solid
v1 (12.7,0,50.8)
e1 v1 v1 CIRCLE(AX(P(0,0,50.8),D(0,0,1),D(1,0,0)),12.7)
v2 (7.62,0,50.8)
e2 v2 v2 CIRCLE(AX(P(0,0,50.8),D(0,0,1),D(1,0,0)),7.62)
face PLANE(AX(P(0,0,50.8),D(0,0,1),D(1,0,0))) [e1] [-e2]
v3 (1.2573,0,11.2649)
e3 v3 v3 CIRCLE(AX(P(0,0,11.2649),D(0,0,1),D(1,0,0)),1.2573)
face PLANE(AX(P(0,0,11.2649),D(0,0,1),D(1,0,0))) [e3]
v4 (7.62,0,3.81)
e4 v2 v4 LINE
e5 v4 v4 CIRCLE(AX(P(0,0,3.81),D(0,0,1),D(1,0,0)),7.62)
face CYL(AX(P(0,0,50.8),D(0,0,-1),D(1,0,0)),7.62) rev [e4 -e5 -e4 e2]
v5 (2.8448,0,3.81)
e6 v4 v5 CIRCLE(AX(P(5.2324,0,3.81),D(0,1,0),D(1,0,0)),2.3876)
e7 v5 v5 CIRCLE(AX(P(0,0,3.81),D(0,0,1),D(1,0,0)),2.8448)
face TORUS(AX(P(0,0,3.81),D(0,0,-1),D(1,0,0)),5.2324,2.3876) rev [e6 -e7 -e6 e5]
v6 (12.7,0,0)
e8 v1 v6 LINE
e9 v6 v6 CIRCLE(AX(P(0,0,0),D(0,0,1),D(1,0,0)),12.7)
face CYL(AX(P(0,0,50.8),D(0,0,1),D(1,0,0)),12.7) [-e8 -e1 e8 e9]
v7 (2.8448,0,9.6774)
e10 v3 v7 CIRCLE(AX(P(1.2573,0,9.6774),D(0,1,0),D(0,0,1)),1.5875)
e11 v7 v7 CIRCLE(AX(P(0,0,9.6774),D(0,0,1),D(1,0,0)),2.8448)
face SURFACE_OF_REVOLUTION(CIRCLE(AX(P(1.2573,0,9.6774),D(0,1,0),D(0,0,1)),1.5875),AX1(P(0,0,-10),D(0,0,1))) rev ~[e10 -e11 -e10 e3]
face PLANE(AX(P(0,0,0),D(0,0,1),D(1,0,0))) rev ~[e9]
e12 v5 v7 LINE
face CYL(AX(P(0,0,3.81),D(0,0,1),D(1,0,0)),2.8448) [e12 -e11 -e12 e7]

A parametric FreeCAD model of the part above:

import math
import FreeCAD as App
import Part
import Sketcher
Q = App.Units.Quantity

doc = App.newDocument("Part")
params = doc.addObject("Spreadsheet::Sheet", "Params")
for row, (alias, value) in enumerate([
    ("sketch1_diameter", "1 in"),
    ("pad1_length", "2 in"),
    ("sketch2_width", "0.3 in"),
    ("sketch2_radius", "0.094 in"),
    ("sketch2_radius2", "0.0625 in"),
    ("sketch2_height", "1.85 in"),
    ("sketch2_height2", "0.231 in"),
    ("groove_angle", "360 deg"),
], start=1):
    params.set(f"A{row}", alias)
    params.set(f"B{row}", "=" + value)
    params.setAlias(f"B{row}", alias)

body = doc.addObject("PartDesign::Body", "Body")

sketch1 = body.newObject("Sketcher::SketchObject", "Sketch")
sketch1.AttachmentSupport = (doc.getObject("XY_Plane"), [""])
sketch1.MapMode = "FlatFace"
sketch1.AttachmentOffset = App.Placement(App.Vector(0, 0, 2 * 25.4), App.Rotation())
sketch1.addGeometry(Part.Circle(App.Vector(0, 0, 0), App.Vector(0, 0, 1), 13), False)
sketch1.addConstraint([
    Sketcher.Constraint("Coincident", 0, 3, -1, 1),
    Sketcher.Constraint("Diameter", 0, Q("1 in")),
])
sketch1.setExpression("Constraints[1]", "Params.sketch1_diameter")
pad1 = body.newObject("PartDesign::Pad", "Pad")
pad1.Profile = sketch1
pad1.setExpression("Length", "Params.pad1_length")
pad1.Reversed = True

sketch2 = body.newObject("Sketcher::SketchObject", "Sketch001")
sketch2.AttachmentSupport = (doc.getObject("XZ_Plane"), [""])
sketch2.MapMode = "FlatFace"
sketch2.addGeometry([
    Part.LineSegment(App.Vector(0, 11.3, 0), App.Vector(0, 50.8, 0)),
    Part.LineSegment(App.Vector(0, 50.8, 0), App.Vector(7.6, 50.8, 0)),
    Part.LineSegment(App.Vector(7.6, 50.8, 0), App.Vector(7.6, 3.8, 0)),
    Part.ArcOfCircle(Part.Circle(App.Vector(5.2, 3.8, 0), App.Vector(0, 0, 1), 2.4), math.radians(180), math.radians(360)),
    Part.LineSegment(App.Vector(2.8, 3.8, 0), App.Vector(2.8, 9.7, 0)),
    Part.ArcOfCircle(Part.Circle(App.Vector(1.3, 9.7, 0), App.Vector(0, 0, 1), 1.6), math.radians(0), math.radians(90)),
    Part.LineSegment(App.Vector(1.3, 11.3, 0), App.Vector(0, 11.3, 0)),
], False)
sketch2.addConstraint([
    Sketcher.Constraint("Coincident", 0, 2, 1, 1),
    Sketcher.Constraint("Coincident", 1, 2, 2, 1),
    Sketcher.Constraint("Tangent", 2, 2, 3, 2),
    Sketcher.Constraint("Tangent", 3, 1, 4, 1),
    Sketcher.Constraint("Tangent", 4, 2, 5, 1),
    Sketcher.Constraint("Tangent", 5, 2, 6, 1),
    Sketcher.Constraint("Coincident", 6, 2, 0, 1),
    Sketcher.Constraint("Vertical", 0),
    Sketcher.Constraint("Horizontal", 1),
    Sketcher.Constraint("Vertical", 2),
    Sketcher.Constraint("Vertical", 4),
    Sketcher.Constraint("Horizontal", 6),
    Sketcher.Constraint("PointOnObject", 0, 2, -2),
    Sketcher.Constraint("DistanceX", 1, 1, 1, 2, Q("0.3 in")),
    Sketcher.Constraint("DistanceY", -1, 1, 0, 2, Q("2 in")),
    Sketcher.Constraint("Radius", 3, Q("0.094 in")),
    Sketcher.Constraint("Radius", 5, Q("0.0625 in")),
    Sketcher.Constraint("DistanceY", 2, 2, 2, 1, Q("1.85 in")),
    Sketcher.Constraint("DistanceY", 4, 1, 4, 2, Q("0.231 in")),
])
sketch2.setExpression("Constraints[13]", "Params.sketch2_width")
sketch2.setExpression("Constraints[15]", "Params.sketch2_radius")
sketch2.setExpression("Constraints[16]", "Params.sketch2_radius2")
sketch2.setExpression("Constraints[17]", "Params.sketch2_height")
sketch2.setExpression("Constraints[18]", "Params.sketch2_height2")
groove = body.newObject("PartDesign::Groove", "Groove")
groove.Profile = sketch2
groove.ReferenceAxis = (sketch2, ["V_Axis"])
groove.setExpression("Angle", "Params.groove_angle")

doc.recompute()
